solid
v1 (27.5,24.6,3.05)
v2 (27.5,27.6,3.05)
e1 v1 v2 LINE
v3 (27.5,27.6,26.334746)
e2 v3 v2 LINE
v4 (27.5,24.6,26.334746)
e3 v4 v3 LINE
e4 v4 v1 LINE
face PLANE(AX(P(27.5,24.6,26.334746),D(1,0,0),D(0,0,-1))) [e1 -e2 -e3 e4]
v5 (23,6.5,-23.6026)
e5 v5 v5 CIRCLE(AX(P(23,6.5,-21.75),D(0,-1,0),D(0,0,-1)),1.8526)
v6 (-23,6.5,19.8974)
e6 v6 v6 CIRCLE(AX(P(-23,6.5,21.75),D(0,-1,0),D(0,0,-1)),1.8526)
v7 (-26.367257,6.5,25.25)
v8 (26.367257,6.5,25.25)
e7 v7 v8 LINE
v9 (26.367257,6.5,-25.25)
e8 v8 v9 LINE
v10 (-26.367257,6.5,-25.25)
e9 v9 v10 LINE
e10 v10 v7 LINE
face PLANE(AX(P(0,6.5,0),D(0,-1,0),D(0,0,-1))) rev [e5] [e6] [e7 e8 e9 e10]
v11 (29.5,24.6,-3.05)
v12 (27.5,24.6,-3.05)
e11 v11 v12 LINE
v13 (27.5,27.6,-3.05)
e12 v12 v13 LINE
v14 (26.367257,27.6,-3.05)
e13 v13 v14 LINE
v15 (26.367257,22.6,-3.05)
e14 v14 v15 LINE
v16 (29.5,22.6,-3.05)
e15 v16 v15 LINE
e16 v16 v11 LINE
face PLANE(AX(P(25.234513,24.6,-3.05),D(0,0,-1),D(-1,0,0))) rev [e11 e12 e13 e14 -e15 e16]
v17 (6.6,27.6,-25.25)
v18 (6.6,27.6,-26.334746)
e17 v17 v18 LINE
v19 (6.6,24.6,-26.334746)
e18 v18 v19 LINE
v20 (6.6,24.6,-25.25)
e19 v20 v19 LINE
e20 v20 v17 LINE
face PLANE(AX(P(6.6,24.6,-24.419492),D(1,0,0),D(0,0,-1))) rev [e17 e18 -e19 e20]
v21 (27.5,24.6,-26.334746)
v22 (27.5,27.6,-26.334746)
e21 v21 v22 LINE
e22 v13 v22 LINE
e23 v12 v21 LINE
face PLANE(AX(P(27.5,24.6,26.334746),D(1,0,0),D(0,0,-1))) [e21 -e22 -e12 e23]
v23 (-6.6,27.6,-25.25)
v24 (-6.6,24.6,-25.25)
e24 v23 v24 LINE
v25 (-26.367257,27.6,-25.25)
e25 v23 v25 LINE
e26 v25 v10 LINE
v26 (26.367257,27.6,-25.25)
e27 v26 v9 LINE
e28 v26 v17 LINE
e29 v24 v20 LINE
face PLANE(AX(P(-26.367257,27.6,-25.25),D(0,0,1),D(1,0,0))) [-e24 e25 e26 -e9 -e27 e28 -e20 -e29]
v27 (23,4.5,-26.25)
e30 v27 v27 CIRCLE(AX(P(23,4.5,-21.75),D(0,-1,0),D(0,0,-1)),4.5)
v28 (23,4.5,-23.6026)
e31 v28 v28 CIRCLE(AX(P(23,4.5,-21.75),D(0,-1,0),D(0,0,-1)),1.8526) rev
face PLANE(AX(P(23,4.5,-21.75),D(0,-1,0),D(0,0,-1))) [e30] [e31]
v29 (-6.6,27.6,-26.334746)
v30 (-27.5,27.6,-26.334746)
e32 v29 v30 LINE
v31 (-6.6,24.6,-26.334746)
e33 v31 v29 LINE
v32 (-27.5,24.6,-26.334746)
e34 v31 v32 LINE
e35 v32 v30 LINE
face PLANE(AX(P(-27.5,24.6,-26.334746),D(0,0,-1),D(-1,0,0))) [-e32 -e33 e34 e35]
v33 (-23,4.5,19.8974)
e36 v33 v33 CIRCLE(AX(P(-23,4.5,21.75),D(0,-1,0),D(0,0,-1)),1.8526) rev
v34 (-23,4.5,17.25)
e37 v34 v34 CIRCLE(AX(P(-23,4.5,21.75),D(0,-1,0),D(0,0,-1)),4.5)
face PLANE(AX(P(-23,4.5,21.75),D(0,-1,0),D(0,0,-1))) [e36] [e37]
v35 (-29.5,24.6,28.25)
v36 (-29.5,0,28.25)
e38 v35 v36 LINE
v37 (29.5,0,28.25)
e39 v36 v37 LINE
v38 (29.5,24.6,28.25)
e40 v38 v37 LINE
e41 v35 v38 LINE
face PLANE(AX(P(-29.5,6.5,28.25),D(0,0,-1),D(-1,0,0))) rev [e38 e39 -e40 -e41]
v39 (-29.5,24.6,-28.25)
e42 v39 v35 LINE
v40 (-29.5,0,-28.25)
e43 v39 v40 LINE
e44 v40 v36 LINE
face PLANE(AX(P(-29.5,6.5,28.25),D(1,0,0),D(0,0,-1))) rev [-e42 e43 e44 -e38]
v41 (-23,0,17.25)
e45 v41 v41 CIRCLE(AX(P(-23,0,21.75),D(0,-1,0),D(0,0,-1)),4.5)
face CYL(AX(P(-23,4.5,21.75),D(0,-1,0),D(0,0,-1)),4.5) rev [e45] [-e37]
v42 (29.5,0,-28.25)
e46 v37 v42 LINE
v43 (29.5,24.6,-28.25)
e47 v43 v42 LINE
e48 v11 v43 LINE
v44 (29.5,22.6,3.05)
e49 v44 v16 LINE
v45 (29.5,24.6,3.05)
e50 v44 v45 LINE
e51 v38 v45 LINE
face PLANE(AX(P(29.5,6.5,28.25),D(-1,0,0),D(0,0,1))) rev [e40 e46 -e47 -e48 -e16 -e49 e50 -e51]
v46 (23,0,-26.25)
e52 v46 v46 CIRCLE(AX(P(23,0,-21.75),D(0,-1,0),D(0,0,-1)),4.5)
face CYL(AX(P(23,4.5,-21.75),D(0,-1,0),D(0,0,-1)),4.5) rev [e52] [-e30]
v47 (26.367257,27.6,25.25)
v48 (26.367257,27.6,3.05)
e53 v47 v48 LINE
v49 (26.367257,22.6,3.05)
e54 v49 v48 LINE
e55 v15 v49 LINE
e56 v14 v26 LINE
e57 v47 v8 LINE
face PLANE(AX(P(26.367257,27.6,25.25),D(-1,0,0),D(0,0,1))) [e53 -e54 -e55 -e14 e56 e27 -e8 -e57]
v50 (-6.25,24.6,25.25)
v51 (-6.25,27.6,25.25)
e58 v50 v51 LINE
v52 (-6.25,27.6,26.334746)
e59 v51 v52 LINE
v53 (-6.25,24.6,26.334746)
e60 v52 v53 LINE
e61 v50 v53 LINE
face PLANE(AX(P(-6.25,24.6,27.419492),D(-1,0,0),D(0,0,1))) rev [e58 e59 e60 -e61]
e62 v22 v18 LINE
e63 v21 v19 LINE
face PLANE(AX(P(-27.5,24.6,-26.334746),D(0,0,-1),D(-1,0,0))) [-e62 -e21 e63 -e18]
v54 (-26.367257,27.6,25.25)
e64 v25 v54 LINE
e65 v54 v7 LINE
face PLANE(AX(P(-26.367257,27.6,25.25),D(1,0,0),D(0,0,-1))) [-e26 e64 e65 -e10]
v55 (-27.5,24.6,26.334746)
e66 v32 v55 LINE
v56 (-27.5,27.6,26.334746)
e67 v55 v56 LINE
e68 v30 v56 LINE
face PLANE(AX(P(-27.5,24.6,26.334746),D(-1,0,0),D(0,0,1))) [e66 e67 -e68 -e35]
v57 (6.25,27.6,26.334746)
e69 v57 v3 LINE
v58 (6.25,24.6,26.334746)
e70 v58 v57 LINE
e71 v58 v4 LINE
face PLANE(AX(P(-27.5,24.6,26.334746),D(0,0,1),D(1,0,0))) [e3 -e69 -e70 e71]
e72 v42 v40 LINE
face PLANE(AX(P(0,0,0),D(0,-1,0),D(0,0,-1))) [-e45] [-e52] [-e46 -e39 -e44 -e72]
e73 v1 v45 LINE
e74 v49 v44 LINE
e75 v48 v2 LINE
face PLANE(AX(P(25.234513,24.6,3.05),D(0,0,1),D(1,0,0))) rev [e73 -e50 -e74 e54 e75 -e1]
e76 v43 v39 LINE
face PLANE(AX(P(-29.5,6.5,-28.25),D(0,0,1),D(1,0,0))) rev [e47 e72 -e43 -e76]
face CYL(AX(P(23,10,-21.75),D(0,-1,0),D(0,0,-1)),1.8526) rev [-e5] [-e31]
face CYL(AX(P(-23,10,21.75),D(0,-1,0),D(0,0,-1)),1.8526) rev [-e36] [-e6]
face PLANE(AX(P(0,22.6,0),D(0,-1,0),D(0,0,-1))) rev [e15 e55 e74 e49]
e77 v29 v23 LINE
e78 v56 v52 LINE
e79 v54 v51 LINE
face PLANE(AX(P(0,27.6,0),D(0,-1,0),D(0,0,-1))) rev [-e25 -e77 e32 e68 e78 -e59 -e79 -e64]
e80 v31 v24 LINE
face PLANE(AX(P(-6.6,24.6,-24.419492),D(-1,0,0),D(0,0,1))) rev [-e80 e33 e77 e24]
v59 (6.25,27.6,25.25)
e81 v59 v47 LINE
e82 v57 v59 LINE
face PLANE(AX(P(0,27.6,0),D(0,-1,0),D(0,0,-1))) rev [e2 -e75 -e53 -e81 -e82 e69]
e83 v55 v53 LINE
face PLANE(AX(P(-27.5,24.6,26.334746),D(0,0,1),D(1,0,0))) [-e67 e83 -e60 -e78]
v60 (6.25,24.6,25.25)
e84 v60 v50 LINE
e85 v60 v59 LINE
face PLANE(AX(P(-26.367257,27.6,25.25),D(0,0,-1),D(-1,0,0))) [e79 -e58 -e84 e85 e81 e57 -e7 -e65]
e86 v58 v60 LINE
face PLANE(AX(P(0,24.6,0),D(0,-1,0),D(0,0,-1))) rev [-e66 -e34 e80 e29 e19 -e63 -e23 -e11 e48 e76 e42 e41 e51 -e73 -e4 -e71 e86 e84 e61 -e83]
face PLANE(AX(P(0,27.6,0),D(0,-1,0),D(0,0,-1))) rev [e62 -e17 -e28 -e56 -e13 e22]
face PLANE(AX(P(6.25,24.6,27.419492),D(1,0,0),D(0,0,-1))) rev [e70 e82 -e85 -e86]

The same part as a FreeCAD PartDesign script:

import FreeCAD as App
import Part
import Sketcher
from FreeCAD import Vector

doc = App.newDocument("Part")
params = doc.addObject("Spreadsheet::Sheet", "Params")
for row, (alias, value) in enumerate([
    ("sketch1_width", "59 mm"),
    ("sketch1_height", "56.5 mm"),
    ("pad1_length", "6.5 mm"),
    ("sketch2_width", "59 mm"),
    ("sketch2_height", "56.5 mm"),
    ("sketch2_height2", "50.5 mm"),
    ("pad2_length", "21.1 mm"),
    ("sketch3_width", "59 mm"),
    ("sketch3_width2", "55 mm"),
    ("sketch3_height", "56.5 mm"),
    ("pocket1_length", "3 mm"),
    ("sketch4_width", "12.5 mm"),
    ("sketch4_width2", "13.2 mm"),
    ("sketch4_height", "6.1 mm"),
    ("pocket2_length", "3 mm"),
    ("sketch5_height", "6.1 mm"),
    ("pocket3_length", "2 mm"),
    ("pocket4_length", "10 mm"),
    ("sketch7_diameter", "9 mm"),
    ("pocket5_length", "4.5 mm"),
], start=1):
    params.set(f"A{row}", alias)
    params.set(f"B{row}", "=" + value)
    params.setAlias(f"B{row}", alias)

body = doc.addObject("PartDesign::Body", "Body")

sketch1 = body.newObject("Sketcher::SketchObject", "Sketch")
sketch1.AttachmentSupport = (doc.getObject("XZ_Plane"), [""])
sketch1.MapMode = "FlatFace"
sketch1.addGeometry([
    Part.LineSegment(Vector(-29.5, -28.25, 0), Vector(-29.5, 28.25, 0)),
    Part.LineSegment(Vector(-29.5, 28.25, 0), Vector(29.5, 28.25, 0)),
    Part.LineSegment(Vector(29.5, 28.25, 0), Vector(29.5, -28.25, 0)),
    Part.LineSegment(Vector(29.5, -28.25, 0), Vector(-29.5, -28.25, 0)),
], False)
sketch1.addConstraint([
    Sketcher.Constraint("Coincident", 0, 2, 1, 1),
    Sketcher.Constraint("Coincident", 1, 2, 2, 1),
    Sketcher.Constraint("Coincident", 2, 2, 3, 1),
    Sketcher.Constraint("Coincident", 3, 2, 0, 1),
    Sketcher.Constraint("Vertical", 0),
    Sketcher.Constraint("Horizontal", 1),
    Sketcher.Constraint("Vertical", 2),
    Sketcher.Constraint("Horizontal", 3),
    Sketcher.Constraint("Symmetric", 0, 2, 2, 2, -1, 1),
    Sketcher.Constraint("DistanceX", 1, 1, 1, 2, 59.0),
    Sketcher.Constraint("DistanceY", 0, 1, 0, 2, 56.5),
])
sketch1.setExpression("Constraints[9]", "Params.sketch1_width")
sketch1.setExpression("Constraints[10]", "Params.sketch1_height")
pad1 = body.newObject("PartDesign::Pad", "Pad")
pad1.Profile = sketch1
pad1.setExpression("Length", "Params.pad1_length")
pad1.Reversed = True

sketch2 = body.newObject("Sketcher::SketchObject", "Sketch001")
sketch2.AttachmentSupport = (doc.getObject("XZ_Plane"), [""])
sketch2.MapMode = "FlatFace"
sketch2.AttachmentOffset = App.Placement(Vector(0, 0, -6.5), App.Rotation())
sketch2.addGeometry([
    Part.LineSegment(Vector(-29.5, -28.25, 0), Vector(-29.5, 28.25, 0)),
    Part.LineSegment(Vector(-29.5, 28.25, 0), Vector(29.5, 28.25, 0)),
    Part.LineSegment(Vector(29.5, 28.25, 0), Vector(29.5, -28.25, 0)),
    Part.LineSegment(Vector(29.5, -28.25, 0), Vector(-29.5, -28.25, 0)),
    Part.LineSegment(Vector(26.367257, 25.25, 0), Vector(-26.367257, 25.25, 0)),
    Part.LineSegment(Vector(-26.367257, 25.25, 0), Vector(-26.367257, -25.25, 0)),
    Part.LineSegment(Vector(-26.367257, -25.25, 0), Vector(26.367257, -25.25, 0)),
    Part.LineSegment(Vector(26.367257, -25.25, 0), Vector(26.367257, 25.25, 0)),
], False)
sketch2.addConstraint([
    Sketcher.Constraint("Coincident", 0, 2, 1, 1),
    Sketcher.Constraint("Coincident", 1, 2, 2, 1),
    Sketcher.Constraint("Coincident", 2, 2, 3, 1),
    Sketcher.Constraint("Coincident", 3, 2, 0, 1),
    Sketcher.Constraint("Coincident", 4, 2, 5, 1),
    Sketcher.Constraint("Coincident", 5, 2, 6, 1),
    Sketcher.Constraint("Coincident", 6, 2, 7, 1),
    Sketcher.Constraint("Coincident", 7, 2, 4, 1),
    Sketcher.Constraint("Vertical", 0),
    Sketcher.Constraint("Horizontal", 1),
    Sketcher.Constraint("Vertical", 2),
    Sketcher.Constraint("Horizontal", 3),
    Sketcher.Constraint("Horizontal", 4),
    Sketcher.Constraint("Vertical", 5),
    Sketcher.Constraint("Horizontal", 6),
    Sketcher.Constraint("Vertical", 7),
    Sketcher.Constraint("Symmetric", 0, 2, 2, 2, -1, 1),
    Sketcher.Constraint("Symmetric", 4, 2, 6, 2, -1, 1),
    Sketcher.Constraint("DistanceX", 1, 1, 1, 2, 59.0),
    Sketcher.Constraint("DistanceY", 0, 1, 0, 2, 56.5),
    Sketcher.Constraint("DistanceY", 5, 2, 5, 1, 50.5),
    Sketcher.Constraint("DistanceX", 4, 2, 4, 1, 52.734513),
])
sketch2.setExpression("Constraints[18]", "Params.sketch2_width")
sketch2.setExpression("Constraints[19]", "Params.sketch2_height")
sketch2.setExpression("Constraints[20]", "Params.sketch2_height2")
pad2 = body.newObject("PartDesign::Pad", "Pad001")
pad2.Profile = sketch2
pad2.setExpression("Length", "Params.pad2_length")
pad2.Reversed = True

sketch3 = body.newObject("Sketcher::SketchObject", "Sketch002")
sketch3.AttachmentSupport = (doc.getObject("XZ_Plane"), [""])
sketch3.MapMode = "FlatFace"
sketch3.AttachmentOffset = App.Placement(Vector(0, 0, -27.6), App.Rotation())
sketch3.addGeometry([
    Part.LineSegment(Vector(-29.5, -28.25, 0), Vector(-29.5, 28.25, 0)),
    Part.LineSegment(Vector(-29.5, 28.25, 0), Vector(29.5, 28.25, 0)),
    Part.LineSegment(Vector(29.5, 28.25, 0), Vector(29.5, -28.25, 0)),
    Part.LineSegment(Vector(29.5, -28.25, 0), Vector(-29.5, -28.25, 0)),
    Part.LineSegment(Vector(27.5, 26.334746, 0), Vector(-27.5, 26.334746, 0)),
    Part.LineSegment(Vector(-27.5, 26.334746, 0), Vector(-27.5, -26.334746, 0)),
    Part.LineSegment(Vector(-27.5, -26.334746, 0), Vector(27.5, -26.334746, 0)),
    Part.LineSegment(Vector(27.5, -26.334746, 0), Vector(27.5, 26.334746, 0)),
], False)
sketch3.addConstraint([
    Sketcher.Constraint("Coincident", 0, 2, 1, 1),
    Sketcher.Constraint("Coincident", 1, 2, 2, 1),
    Sketcher.Constraint("Coincident", 2, 2, 3, 1),
    Sketcher.Constraint("Coincident", 3, 2, 0, 1),
    Sketcher.Constraint("Coincident", 4, 2, 5, 1),
    Sketcher.Constraint("Coincident", 5, 2, 6, 1),
    Sketcher.Constraint("Coincident", 6, 2, 7, 1),
    Sketcher.Constraint("Coincident", 7, 2, 4, 1),
    Sketcher.Constraint("Vertical", 0),
    Sketcher.Constraint("Horizontal", 1),
    Sketcher.Constraint("Vertical", 2),
    Sketcher.Constraint("Horizontal", 3),
    Sketcher.Constraint("Horizontal", 4),
    Sketcher.Constraint("Vertical", 5),
    Sketcher.Constraint("Horizontal", 6),
    Sketcher.Constraint("Vertical", 7),
    Sketcher.Constraint("Symmetric", 0, 2, 2, 2, -1, 1),
    Sketcher.Constraint("Symmetric", 4, 2, 6, 2, -1, 1),
    Sketcher.Constraint("DistanceX", 1, 1, 1, 2, 59.0),
    Sketcher.Constraint("DistanceX", 4, 2, 4, 1, 55.0),
    Sketcher.Constraint("DistanceY", 0, 1, 0, 2, 56.5),
    Sketcher.Constraint("DistanceY", 5, 2, 5, 1, 52.669492),
])
sketch3.setExpression("Constraints[18]", "Params.sketch3_width")
sketch3.setExpression("Constraints[19]", "Params.sketch3_width2")
sketch3.setExpression("Constraints[20]", "Params.sketch3_height")
pocket1 = body.newObject("PartDesign::Pocket", "Pocket")
pocket1.Profile = sketch3
pocket1.setExpression("Length", "Params.pocket1_length")
pocket1.Reversed = True

sketch4 = body.newObject("Sketcher::SketchObject", "Sketch003")
sketch4.AttachmentSupport = (doc.getObject("XZ_Plane"), [""])
sketch4.MapMode = "FlatFace"
sketch4.AttachmentOffset = App.Placement(Vector(0, 0, -27.6), App.Rotation())
sketch4.addGeometry([
    Part.LineSegment(Vector(-6.25, 25.25, 0), Vector(-6.25, 27.419492, 0)),
    Part.LineSegment(Vector(-6.25, 27.419492, 0), Vector(6.25, 27.419492, 0)),
    Part.LineSegment(Vector(6.25, 27.419492, 0), Vector(6.25, 25.25, 0)),
    Part.LineSegment(Vector(6.25, 25.25, 0), Vector(-6.25, 25.25, 0)),
    Part.LineSegment(Vector(-6.6, -28.25, 0), Vector(-6.6, -24.419492, 0)),
    Part.LineSegment(Vector(-6.6, -24.419492, 0), Vector(6.6, -24.419492, 0)),
    Part.LineSegment(Vector(6.6, -24.419492, 0), Vector(6.6, -28.25, 0)),
    Part.LineSegment(Vector(6.6, -28.25, 0), Vector(-6.6, -28.25, 0)),
    Part.LineSegment(Vector(25.234513, -3.05, 0), Vector(25.234513, 3.05, 0)),
    Part.LineSegment(Vector(25.234513, 3.05, 0), Vector(27.5, 3.05, 0)),
    Part.LineSegment(Vector(27.5, 3.05, 0), Vector(27.5, -3.05, 0)),
    Part.LineSegment(Vector(27.5, -3.05, 0), Vector(25.234513, -3.05, 0)),
], False)
sketch4.addConstraint([
    Sketcher.Constraint("Coincident", 0, 2, 1, 1),
    Sketcher.Constraint("Coincident", 1, 2, 2, 1),
    Sketcher.Constraint("Coincident", 2, 2, 3, 1),
    Sketcher.Constraint("Coincident", 3, 2, 0, 1),
    Sketcher.Constraint("Coincident", 4, 2, 5, 1),
    Sketcher.Constraint("Coincident", 5, 2, 6, 1),
    Sketcher.Constraint("Coincident", 6, 2, 7, 1),
    Sketcher.Constraint("Coincident", 7, 2, 4, 1),
    Sketcher.Constraint("Coincident", 8, 2, 9, 1),
    Sketcher.Constraint("Coincident", 9, 2, 10, 1),
    Sketcher.Constraint("Coincident", 10, 2, 11, 1),
    Sketcher.Constraint("Coincident", 11, 2, 8, 1),
    Sketcher.Constraint("Vertical", 0),
    Sketcher.Constraint("Horizontal", 1),
    Sketcher.Constraint("Vertical", 2),
    Sketcher.Constraint("Horizontal", 3),
    Sketcher.Constraint("Vertical", 4),
    Sketcher.Constraint("Horizontal", 5),
    Sketcher.Constraint("Vertical", 6),
    Sketcher.Constraint("Horizontal", 7),
    Sketcher.Constraint("Vertical", 8),
    Sketcher.Constraint("Horizontal", 9),
    Sketcher.Constraint("Vertical", 10),
    Sketcher.Constraint("Horizontal", 11),
    Sketcher.Constraint("DistanceX", 1, 1, 1, 2, 12.5),
    Sketcher.Constraint("DistanceX", 5, 1, 5, 2, 13.2),
    Sketcher.Constraint("DistanceY", 8, 1, 8, 2, 6.1),
    Sketcher.Constraint("DistanceX", 4, 2, -1, 1, 6.6),
    Sketcher.Constraint("DistanceX", -1, 1, 9, 2, 27.5),
    Sketcher.Constraint("DistanceY", 6, 2, 2, 2, 53.5),
    Sketcher.Constraint("DistanceY", 8, 2, 2, 2, 22.2),
    Sketcher.Constraint("DistanceX", 0, 2, -1, 1, 6.25),
    Sketcher.Constraint("DistanceY", -1, 1, 2, 2, 25.25),
    Sketcher.Constraint("DistanceY", 0, 1, 0, 2, 2.169492),
    Sketcher.Constraint("DistanceY", 4, 1, 4, 2, 3.830508),
    Sketcher.Constraint("DistanceX", 9, 1, 9, 2, 2.265487),
])
sketch4.setExpression("Constraints[24]", "Params.sketch4_width")
sketch4.setExpression("Constraints[25]", "Params.sketch4_width2")
sketch4.setExpression("Constraints[26]", "Params.sketch4_height")
pocket2 = body.newObject("PartDesign::Pocket", "Pocket001")
pocket2.Profile = sketch4
pocket2.setExpression("Length", "Params.pocket2_length")
pocket2.Reversed = True

sketch5 = body.newObject("Sketcher::SketchObject", "Sketch004")
sketch5.AttachmentSupport = (doc.getObject("XZ_Plane"), [""])
sketch5.MapMode = "FlatFace"
sketch5.AttachmentOffset = App.Placement(Vector(0, 0, -24.6), App.Rotation())
sketch5.addGeometry([
    Part.LineSegment(Vector(26.367257, -3.05, 0), Vector(26.367257, 3.05, 0)),
    Part.LineSegment(Vector(26.367257, 3.05, 0), Vector(29.5, 3.05, 0)),
    Part.LineSegment(Vector(29.5, 3.05, 0), Vector(29.5, -3.05, 0)),
    Part.LineSegment(Vector(29.5, -3.05, 0), Vector(26.367257, -3.05, 0)),
], False)
sketch5.addConstraint([
    Sketcher.Constraint("Coincident", 0, 2, 1, 1),
    Sketcher.Constraint("Coincident", 1, 2, 2, 1),
    Sketcher.Constraint("Coincident", 2, 2, 3, 1),
    Sketcher.Constraint("Coincident", 3, 2, 0, 1),
    Sketcher.Constraint("Vertical", 0),
    Sketcher.Constraint("Horizontal", 1),
    Sketcher.Constraint("Vertical", 2),
    Sketcher.Constraint("Horizontal", 3),
    Sketcher.Constraint("DistanceY", 0, 1, 0, 2, 6.1),
    Sketcher.Constraint("DistanceX", -1, 1, 1, 2, 29.5),
    Sketcher.Constraint("DistanceY", -1, 1, 0, 2, 3.05),
    Sketcher.Constraint("DistanceX", 1, 1, 1, 2, 3.132743),
])
sketch5.setExpression("Constraints[8]", "Params.sketch5_height")
pocket3 = body.newObject("PartDesign::Pocket", "Pocket002")
pocket3.Profile = sketch5
pocket3.setExpression("Length", "Params.pocket3_length")
pocket3.Reversed = True

sketch6 = body.newObject("Sketcher::SketchObject", "Sketch005")
sketch6.AttachmentSupport = (doc.getObject("XZ_Plane"), [""])
sketch6.MapMode = "FlatFace"
sketch6.addGeometry([
    Part.Circle(Vector(23, -21.75, 0), Vector(0, 0, 1), 1.8526),
    Part.Circle(Vector(-23, 21.75, 0), Vector(0, 0, 1), 1.8526),
], False)
sketch6.addConstraint([
    Sketcher.Constraint("Equal", 0, 1),
    Sketcher.Constraint("Symmetric", 0, 3, 1, 3, -1, 1),
    Sketcher.Constraint("DistanceX", -1, 1, 0, 3, 23.0),
    Sketcher.Constraint("Diameter", 0, 3.7052),
    Sketcher.Constraint("DistanceY", 0, 3, 1, 3, 43.5),
])
pocket4 = body.newObject("PartDesign::Pocket", "Pocket003")
pocket4.Profile = sketch6
pocket4.setExpression("Length", "Params.pocket4_length")

sketch7 = body.newObject("Sketcher::SketchObject", "Sketch006")
sketch7.AttachmentSupport = (doc.getObject("XZ_Plane"), [""])
sketch7.MapMode = "FlatFace"
sketch7.addGeometry([
    Part.Circle(Vector(-23, 21.75, 0), Vector(0, 0, 1), 4.5),
    Part.Circle(Vector(23, -21.75, 0), Vector(0, 0, 1), 4.5),
], False)
sketch7.addConstraint([
    Sketcher.Constraint("Equal", 0, 1),
    Sketcher.Constraint("Symmetric", 0, 3, 1, 3, -1, 1),
    Sketcher.Constraint("Diameter", 0, 9.0),
    Sketcher.Constraint("DistanceX", 0, 3, -1, 1, 23.0),
    Sketcher.Constraint("DistanceY", 1, 3, 0, 3, 43.5),
])
sketch7.setExpression("Constraints[2]", "Params.sketch7_diameter")
pocket5 = body.newObject("PartDesign::Pocket", "Pocket004")
pocket5.Profile = sketch7
pocket5.setExpression("Length", "Params.pocket5_length")

doc.recompute()
